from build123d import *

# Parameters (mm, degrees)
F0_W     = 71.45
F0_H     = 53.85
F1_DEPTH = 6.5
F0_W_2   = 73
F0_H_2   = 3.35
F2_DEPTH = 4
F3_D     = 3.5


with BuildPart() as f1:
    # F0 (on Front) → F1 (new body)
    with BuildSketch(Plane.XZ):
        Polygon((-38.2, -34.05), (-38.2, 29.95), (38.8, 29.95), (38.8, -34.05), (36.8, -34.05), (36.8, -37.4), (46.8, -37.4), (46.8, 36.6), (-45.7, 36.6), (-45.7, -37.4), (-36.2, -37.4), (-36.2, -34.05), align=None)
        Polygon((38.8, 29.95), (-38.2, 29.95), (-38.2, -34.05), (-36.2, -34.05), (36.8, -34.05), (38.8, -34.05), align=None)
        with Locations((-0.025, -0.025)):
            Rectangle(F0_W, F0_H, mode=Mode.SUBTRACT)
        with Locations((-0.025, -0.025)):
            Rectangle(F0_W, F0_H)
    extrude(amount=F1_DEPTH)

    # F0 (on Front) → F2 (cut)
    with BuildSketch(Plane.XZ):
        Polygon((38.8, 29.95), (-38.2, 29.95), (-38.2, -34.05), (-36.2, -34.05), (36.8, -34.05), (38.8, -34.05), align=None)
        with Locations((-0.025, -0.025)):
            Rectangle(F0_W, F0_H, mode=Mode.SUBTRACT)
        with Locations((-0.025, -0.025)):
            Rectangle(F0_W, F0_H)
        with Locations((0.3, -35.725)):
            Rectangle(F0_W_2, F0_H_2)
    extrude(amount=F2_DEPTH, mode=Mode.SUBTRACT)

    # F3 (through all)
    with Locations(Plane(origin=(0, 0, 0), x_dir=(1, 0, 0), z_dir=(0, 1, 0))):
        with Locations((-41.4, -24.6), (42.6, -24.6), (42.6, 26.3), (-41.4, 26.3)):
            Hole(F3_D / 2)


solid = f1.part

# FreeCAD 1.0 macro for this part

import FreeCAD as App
import Part
import Sketcher

V = App.Vector

doc = App.newDocument("Part")
body = doc.addObject("PartDesign::Body", "Body")

sketch1 = doc.addObject("Sketcher::SketchObject", "Sketch")
body.addObject(sketch1)
sketch1.AttachmentSupport = (doc.XZ_Plane, [""])
sketch1.MapMode = "FlatFace"
sketch1.addGeometry([
    Part.LineSegment(V(36.8, -34, 0), V(36.8, -37.4, 0)),
    Part.LineSegment(V(36.8, -37.4, 0), V(46.8, -37.4, 0)),
    Part.LineSegment(V(46.8, -37.4, 0), V(46.8, 36.6, 0)),
    Part.LineSegment(V(46.8, 36.6, 0), V(-45.7, 36.6, 0)),
    Part.LineSegment(V(-45.7, 36.6, 0), V(-45.7, -37.4, 0)),
    Part.LineSegment(V(-45.7, -37.4, 0), V(-36.2, -37.4, 0)),
    Part.LineSegment(V(-36.2, -37.4, 0), V(-36.2, -34, 0)),
    Part.LineSegment(V(-36.2, -34, 0), V(36.8, -34, 0)),
], False)
sketch1.addConstraint([
    Sketcher.Constraint("Coincident", 0, 2, 1, 1),
    Sketcher.Constraint("Coincident", 1, 2, 2, 1),
    Sketcher.Constraint("Coincident", 2, 2, 3, 1),
    Sketcher.Constraint("Coincident", 3, 2, 4, 1),
    Sketcher.Constraint("Coincident", 4, 2, 5, 1),
    Sketcher.Constraint("Coincident", 5, 2, 6, 1),
    Sketcher.Constraint("Coincident", 6, 2, 7, 1),
    Sketcher.Constraint("Coincident", 7, 2, 0, 1),
    Sketcher.Constraint("Vertical", 0),
    Sketcher.Constraint("Horizontal", 1),
    Sketcher.Constraint("Vertical", 2),
    Sketcher.Constraint("Horizontal", 3),
    Sketcher.Constraint("Vertical", 4),
    Sketcher.Constraint("Horizontal", 5),
    Sketcher.Constraint("Vertical", 6),
    Sketcher.Constraint("Horizontal", 7),
    Sketcher.Constraint("Horizontal", 1, 2, 4, 2),
    Sketcher.Constraint("DistanceX", 1, 1, 1, 2, 10.0),
    Sketcher.Constraint("DistanceX", 7, 1, 7, 2, 73.0),
    Sketcher.Constraint("DistanceY", 2, 1, 2, 2, 74.0),
    Sketcher.Constraint("DistanceX", 3, 2, 3, 1, 92.5),
    Sketcher.Constraint("DistanceY", 0, 2, 0, 1, 3.35),
    Sketcher.Constraint("DistanceX", -1, 1, 0, 2, 36.8),
    Sketcher.Constraint("DistanceY", 0, 2, -1, 1, 37.4),
])
pad1 = doc.addObject("PartDesign::Pad", "Pad")
body.addObject(pad1)
pad1.Profile = sketch1
pad1.Length = 6.5

sketch2 = doc.addObject("Sketcher::SketchObject", "Sketch001")
body.addObject(sketch2)
sketch2.AttachmentSupport = (doc.XZ_Plane, [""])
sketch2.MapMode = "FlatFace"
sketch2.addGeometry([
    Part.LineSegment(V(38.8, 29.9, 0), V(-38.2, 29.9, 0)),
    Part.LineSegment(V(-38.2, 29.9, 0), V(-38.2, -34, 0)),
    Part.LineSegment(V(-38.2, -34, 0), V(-36.2, -34, 0)),
    Part.LineSegment(V(-36.2, -34, 0), V(-36.2, -37.4, 0)),
    Part.LineSegment(V(-36.2, -37.4, 0), V(36.8, -37.4, 0)),
    Part.LineSegment(V(36.8, -37.4, 0), V(36.8, -34, 0)),
    Part.LineSegment(V(36.8, -34, 0), V(38.8, -34, 0)),
    Part.LineSegment(V(38.8, -34, 0), V(38.8, 29.9, 0)),
], False)
sketch2.addConstraint([
    Sketcher.Constraint("Coincident", 0, 2, 1, 1),
    Sketcher.Constraint("Coincident", 1, 2, 2, 1),
    Sketcher.Constraint("Coincident", 2, 2, 3, 1),
    Sketcher.Constraint("Coincident", 3, 2, 4, 1),
    Sketcher.Constraint("Coincident", 4, 2, 5, 1),
    Sketcher.Constraint("Coincident", 5, 2, 6, 1),
    Sketcher.Constraint("Coincident", 6, 2, 7, 1),
    Sketcher.Constraint("Coincident", 7, 2, 0, 1),
    Sketcher.Constraint("Horizontal", 0),
    Sketcher.Constraint("Vertical", 1),
    Sketcher.Constraint("Horizontal", 2),
    Sketcher.Constraint("Vertical", 3),
    Sketcher.Constraint("Horizontal", 4),
    Sketcher.Constraint("Vertical", 5),
    Sketcher.Constraint("Horizontal", 6),
    Sketcher.Constraint("Vertical", 7),
    Sketcher.Constraint("Horizontal", 2, 2, 5, 2),
    Sketcher.Constraint("Equal", 2, 6),
    Sketcher.Constraint("DistanceX", 0, 2, 0, 1, 77.0),
    Sketcher.Constraint("DistanceX", 2, 1, 2, 2, 2.0),
    Sketcher.Constraint("DistanceY", 1, 2, 1, 1, 64.0),
    Sketcher.Constraint("DistanceY", 3, 2, 3, 1, 3.35),
    Sketcher.Constraint("DistanceX", 0, 2, -1, 1, 38.2),
    Sketcher.Constraint("DistanceY", 3, 2, -1, 1, 37.4),
])
pocket1 = doc.addObject("PartDesign::Pocket", "Pocket")
body.addObject(pocket1)
pocket1.Profile = sketch2
pocket1.Length = 4
pocket1.Reversed = True

sketch3 = doc.addObject("Sketcher::SketchObject", "Sketch002")
body.addObject(sketch3)
sketch3.AttachmentSupport = (doc.XZ_Plane, [""])
sketch3.MapMode = "FlatFace"
sketch3.addGeometry([
    Part.Circle(V(-41.4, 24.6, 0), V(0, 0, 1), 1.8),
    Part.Circle(V(42.6, 24.6, 0), V(0, 0, 1), 1.8),
    Part.Circle(V(42.6, -26.3, 0), V(0, 0, 1), 1.8),
    Part.Circle(V(-41.4, -26.3, 0), V(0, 0, 1), 1.8),
], False)
sketch3.addConstraint([
    Sketcher.Constraint("Equal", 0, 1),
    Sketcher.Constraint("Equal", 1, 2),
    Sketcher.Constraint("Equal", 2, 3),
    Sketcher.Constraint("Horizontal", 0, 3, 1, 3),
    Sketcher.Constraint("Horizontal", 2, 3, 3, 3),
    Sketcher.Constraint("Vertical", 1, 3, 2, 3),
    Sketcher.Constraint("Vertical", 0, 3, 3, 3),
    Sketcher.Constraint("Diameter", 0, 3.5),
    Sketcher.Constraint("DistanceX", 0, 3, 1, 3, 84.0),
    Sketcher.Constraint("DistanceX", 0, 3, -1, 1, 41.4),
    Sketcher.Constraint("DistanceY", -1, 1, 0, 3, 24.6),
    Sketcher.Constraint("DistanceY", 2, 3, -1, 1, 26.3),
])
doc.recompute()
hole = doc.addObject("PartDesign::Hole", "Hole")
body.addObject(hole)
hole.Profile = sketch3
hole.ThreadType = "None"
hole.Diameter = 3.5
hole.DepthType = "ThroughAll"
hole.Reversed = True

doc.recompute()
